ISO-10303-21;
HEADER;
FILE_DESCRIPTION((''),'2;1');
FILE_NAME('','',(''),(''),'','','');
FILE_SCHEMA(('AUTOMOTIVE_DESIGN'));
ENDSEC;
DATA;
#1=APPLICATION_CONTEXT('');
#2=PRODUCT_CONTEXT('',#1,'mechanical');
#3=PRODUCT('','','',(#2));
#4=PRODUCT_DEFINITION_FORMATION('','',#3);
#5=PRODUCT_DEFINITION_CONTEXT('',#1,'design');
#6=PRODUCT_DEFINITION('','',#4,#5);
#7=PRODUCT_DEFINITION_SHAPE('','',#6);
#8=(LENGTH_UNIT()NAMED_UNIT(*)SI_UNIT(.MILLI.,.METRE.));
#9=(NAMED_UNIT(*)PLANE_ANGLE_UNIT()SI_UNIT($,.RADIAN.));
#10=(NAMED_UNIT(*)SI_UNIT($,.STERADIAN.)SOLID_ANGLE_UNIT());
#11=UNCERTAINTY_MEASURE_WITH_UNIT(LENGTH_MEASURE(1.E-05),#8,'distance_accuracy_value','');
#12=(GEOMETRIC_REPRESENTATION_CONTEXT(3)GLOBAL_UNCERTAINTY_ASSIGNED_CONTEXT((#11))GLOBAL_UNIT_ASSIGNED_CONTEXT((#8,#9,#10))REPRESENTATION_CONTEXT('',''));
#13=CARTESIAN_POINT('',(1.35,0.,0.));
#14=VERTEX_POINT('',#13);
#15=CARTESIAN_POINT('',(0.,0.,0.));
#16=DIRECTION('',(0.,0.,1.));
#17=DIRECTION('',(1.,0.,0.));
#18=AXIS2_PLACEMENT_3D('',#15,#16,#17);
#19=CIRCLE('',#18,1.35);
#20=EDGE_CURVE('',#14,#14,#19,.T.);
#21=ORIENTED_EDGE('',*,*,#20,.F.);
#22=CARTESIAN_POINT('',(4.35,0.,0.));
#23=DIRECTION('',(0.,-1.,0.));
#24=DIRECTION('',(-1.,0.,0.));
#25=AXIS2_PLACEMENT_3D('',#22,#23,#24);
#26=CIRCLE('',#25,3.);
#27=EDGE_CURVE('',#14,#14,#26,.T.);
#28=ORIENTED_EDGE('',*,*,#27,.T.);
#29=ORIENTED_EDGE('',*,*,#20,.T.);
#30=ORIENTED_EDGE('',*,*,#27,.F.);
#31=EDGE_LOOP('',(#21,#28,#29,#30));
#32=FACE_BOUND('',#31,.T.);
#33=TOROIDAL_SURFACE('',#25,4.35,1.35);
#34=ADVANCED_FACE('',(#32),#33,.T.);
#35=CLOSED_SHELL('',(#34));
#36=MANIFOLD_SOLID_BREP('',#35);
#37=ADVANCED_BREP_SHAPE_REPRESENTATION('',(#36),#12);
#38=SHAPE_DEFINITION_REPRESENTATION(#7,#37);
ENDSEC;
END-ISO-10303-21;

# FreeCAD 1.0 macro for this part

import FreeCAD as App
import Part
import Sketcher
Q = App.Units.Quantity

doc = App.newDocument("Part")
body = doc.addObject("PartDesign::Body", "Body")

# Sketch on XY plane
sketch1 = body.newObject("Sketcher::SketchObject", "Sketch")
sketch1.AttachmentSupport = (doc.getObject("XY_Plane"), [""])
sketch1.MapMode = "FlatFace"
sketch1.addGeometry(Part.Circle(App.Vector(0, 0, 0), App.Vector(0, 0, 1), 1.35), False)
sketch1.addGeometry(Part.LineSegment(App.Vector(4.35, 0, 0), App.Vector(4.35, -10, 0)), True)  # axis
sketch1.addConstraint(Sketcher.Constraint("Vertical", 1))
sketch1.addConstraint(Sketcher.Constraint("Coincident", 0, 3, -1, 1))
sketch1.addConstraint(Sketcher.Constraint("PointOnObject", 1, 1, -1))
sketch1.addConstraint(Sketcher.Constraint("Diameter", 0, Q("2.7 mm")))
sketch1.addConstraint(Sketcher.Constraint("DistanceY", 1, 2, 1, 1, Q("10 mm")))
sketch1.addConstraint(Sketcher.Constraint("DistanceX", -1, 1, 1, 1, Q("4.35 mm")))
revolution = body.newObject("PartDesign::Revolution", "Revolution")
revolution.Profile = sketch1
revolution.ReferenceAxis = (sketch1, ["Axis0"])
revolution.Angle = 360

doc.recompute()
